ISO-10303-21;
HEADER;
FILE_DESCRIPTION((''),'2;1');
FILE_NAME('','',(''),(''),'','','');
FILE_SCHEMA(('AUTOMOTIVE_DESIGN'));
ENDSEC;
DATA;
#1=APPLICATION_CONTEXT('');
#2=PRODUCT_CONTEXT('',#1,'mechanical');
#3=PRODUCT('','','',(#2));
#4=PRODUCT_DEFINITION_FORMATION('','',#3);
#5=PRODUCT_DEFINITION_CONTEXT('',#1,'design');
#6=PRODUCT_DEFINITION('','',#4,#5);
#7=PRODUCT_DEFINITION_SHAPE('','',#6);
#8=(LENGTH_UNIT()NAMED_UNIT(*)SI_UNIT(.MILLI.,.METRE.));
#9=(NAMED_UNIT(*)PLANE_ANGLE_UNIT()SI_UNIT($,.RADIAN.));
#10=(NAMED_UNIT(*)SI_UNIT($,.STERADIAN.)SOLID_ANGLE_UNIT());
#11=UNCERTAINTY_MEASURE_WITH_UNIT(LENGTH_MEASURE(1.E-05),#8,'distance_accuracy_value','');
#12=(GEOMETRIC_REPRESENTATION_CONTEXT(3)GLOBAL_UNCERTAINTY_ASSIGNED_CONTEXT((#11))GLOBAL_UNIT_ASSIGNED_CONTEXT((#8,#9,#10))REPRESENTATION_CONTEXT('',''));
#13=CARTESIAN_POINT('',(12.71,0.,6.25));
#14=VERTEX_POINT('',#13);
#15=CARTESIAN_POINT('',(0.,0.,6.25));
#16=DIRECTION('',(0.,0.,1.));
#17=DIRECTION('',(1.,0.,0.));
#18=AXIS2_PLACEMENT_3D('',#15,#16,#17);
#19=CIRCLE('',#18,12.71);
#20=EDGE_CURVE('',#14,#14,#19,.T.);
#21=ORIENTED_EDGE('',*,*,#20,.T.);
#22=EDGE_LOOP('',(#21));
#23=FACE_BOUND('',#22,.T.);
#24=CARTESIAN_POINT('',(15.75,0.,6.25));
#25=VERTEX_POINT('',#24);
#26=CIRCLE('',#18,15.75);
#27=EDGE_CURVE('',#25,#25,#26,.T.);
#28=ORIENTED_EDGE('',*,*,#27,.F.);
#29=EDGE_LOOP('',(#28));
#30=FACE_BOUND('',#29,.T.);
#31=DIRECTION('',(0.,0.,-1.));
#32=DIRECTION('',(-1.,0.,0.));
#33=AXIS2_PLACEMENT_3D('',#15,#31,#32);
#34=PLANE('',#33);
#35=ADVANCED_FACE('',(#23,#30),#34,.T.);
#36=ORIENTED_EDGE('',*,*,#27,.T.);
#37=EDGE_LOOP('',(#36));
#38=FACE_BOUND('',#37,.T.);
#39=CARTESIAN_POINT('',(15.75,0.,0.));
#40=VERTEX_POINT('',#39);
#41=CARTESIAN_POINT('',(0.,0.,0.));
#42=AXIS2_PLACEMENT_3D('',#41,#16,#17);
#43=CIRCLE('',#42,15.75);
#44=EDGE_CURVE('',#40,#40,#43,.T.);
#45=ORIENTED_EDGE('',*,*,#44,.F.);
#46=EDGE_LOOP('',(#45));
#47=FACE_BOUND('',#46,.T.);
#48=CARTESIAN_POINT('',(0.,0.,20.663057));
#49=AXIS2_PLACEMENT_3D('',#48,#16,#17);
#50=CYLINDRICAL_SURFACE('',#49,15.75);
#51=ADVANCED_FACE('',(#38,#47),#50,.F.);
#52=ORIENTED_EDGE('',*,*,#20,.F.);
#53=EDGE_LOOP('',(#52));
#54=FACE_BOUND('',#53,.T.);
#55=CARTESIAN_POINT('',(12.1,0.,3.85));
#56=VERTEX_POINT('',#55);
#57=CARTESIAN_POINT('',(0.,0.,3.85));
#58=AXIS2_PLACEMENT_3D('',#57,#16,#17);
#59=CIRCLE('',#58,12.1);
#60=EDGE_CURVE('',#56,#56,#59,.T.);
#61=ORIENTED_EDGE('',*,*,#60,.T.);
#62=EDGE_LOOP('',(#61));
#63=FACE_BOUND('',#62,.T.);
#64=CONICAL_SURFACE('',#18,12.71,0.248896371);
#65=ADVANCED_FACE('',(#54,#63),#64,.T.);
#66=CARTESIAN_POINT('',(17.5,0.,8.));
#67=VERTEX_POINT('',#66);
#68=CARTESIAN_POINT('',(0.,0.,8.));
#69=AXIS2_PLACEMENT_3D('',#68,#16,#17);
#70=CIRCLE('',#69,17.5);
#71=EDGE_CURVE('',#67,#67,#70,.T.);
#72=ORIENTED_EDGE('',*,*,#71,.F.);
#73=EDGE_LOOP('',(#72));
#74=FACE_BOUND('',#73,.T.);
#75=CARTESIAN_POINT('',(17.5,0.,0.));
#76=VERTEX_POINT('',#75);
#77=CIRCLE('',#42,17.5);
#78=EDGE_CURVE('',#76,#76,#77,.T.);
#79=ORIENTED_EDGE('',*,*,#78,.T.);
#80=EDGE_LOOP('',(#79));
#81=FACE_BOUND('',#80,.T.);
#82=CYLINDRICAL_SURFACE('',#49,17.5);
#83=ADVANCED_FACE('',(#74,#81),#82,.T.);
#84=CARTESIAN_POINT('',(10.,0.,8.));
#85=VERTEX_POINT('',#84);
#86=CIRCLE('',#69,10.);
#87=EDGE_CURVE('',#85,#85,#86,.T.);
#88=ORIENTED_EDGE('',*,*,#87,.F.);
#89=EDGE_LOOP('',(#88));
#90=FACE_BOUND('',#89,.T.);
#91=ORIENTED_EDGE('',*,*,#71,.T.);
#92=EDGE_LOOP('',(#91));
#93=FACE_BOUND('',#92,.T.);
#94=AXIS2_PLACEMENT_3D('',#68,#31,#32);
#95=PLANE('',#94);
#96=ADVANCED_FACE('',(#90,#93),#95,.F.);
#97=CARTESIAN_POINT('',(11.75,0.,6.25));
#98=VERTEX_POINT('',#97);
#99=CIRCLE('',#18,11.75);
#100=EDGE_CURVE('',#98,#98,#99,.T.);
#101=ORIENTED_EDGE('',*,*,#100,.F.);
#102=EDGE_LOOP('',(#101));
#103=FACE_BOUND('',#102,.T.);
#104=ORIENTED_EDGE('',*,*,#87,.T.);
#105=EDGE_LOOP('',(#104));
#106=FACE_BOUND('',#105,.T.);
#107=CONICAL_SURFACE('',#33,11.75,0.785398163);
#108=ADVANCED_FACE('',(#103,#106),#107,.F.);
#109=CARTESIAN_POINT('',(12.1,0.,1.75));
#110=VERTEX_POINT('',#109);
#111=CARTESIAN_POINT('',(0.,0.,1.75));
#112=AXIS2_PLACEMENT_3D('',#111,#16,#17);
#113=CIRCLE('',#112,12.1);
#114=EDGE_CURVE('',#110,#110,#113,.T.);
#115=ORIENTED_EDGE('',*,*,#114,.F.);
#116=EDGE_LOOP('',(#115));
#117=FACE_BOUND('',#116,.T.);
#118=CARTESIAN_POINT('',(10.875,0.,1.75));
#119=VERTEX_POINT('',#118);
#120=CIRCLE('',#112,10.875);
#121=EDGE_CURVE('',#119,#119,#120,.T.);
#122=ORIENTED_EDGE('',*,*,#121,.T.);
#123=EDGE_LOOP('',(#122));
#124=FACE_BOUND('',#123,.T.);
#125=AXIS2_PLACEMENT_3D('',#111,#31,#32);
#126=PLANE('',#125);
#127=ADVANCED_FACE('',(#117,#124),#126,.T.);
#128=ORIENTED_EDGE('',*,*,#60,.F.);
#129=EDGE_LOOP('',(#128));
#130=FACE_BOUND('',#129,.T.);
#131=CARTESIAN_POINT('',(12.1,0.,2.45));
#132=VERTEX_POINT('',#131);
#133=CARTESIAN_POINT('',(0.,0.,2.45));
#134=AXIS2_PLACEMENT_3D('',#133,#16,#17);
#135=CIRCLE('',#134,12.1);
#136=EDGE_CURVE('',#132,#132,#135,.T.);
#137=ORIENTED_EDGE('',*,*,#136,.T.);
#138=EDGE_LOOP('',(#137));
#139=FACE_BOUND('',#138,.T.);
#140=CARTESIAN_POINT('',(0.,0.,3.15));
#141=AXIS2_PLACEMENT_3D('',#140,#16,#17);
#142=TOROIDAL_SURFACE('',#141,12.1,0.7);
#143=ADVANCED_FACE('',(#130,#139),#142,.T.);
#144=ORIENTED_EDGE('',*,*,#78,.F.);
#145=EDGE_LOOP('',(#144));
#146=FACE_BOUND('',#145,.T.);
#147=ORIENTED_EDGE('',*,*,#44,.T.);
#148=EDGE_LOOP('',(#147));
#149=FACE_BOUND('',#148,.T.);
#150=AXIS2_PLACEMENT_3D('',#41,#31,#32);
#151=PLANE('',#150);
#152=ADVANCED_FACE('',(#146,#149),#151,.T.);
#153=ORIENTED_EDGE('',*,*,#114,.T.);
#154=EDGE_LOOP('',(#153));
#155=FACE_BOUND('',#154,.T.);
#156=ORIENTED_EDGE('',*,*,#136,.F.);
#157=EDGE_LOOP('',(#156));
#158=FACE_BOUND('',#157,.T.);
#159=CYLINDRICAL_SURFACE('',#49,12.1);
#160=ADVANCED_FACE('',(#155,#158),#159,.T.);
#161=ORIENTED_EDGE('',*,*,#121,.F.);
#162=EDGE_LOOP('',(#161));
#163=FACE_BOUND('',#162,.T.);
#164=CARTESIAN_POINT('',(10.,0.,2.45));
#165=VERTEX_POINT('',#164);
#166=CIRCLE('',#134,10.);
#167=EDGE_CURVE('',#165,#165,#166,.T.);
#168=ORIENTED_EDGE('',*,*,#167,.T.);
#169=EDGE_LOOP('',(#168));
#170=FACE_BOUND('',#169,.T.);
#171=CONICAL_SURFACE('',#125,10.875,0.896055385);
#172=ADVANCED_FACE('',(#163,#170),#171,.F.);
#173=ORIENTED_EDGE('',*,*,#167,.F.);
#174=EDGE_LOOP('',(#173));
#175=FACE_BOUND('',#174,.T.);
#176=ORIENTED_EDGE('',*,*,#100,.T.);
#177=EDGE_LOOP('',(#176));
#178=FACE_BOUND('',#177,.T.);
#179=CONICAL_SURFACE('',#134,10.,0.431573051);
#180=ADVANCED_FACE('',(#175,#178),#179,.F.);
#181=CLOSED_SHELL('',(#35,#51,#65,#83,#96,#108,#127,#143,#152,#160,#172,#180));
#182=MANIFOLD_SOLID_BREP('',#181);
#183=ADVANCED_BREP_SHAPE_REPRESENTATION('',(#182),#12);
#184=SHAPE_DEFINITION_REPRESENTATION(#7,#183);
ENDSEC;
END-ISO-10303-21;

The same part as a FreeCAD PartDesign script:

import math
import FreeCAD as App
import Part
import Sketcher

V = App.Vector
Q = App.Units.Quantity

doc = App.newDocument("Part")
body = doc.addObject("PartDesign::Body", "Body")

# Sketch on YZ plane
sketch1 = doc.addObject("Sketcher::SketchObject", "Sketch")
body.addObject(sketch1)
sketch1.AttachmentSupport = (doc.YZ_Plane, [""])
sketch1.MapMode = "FlatFace"
sketch1.addGeometry(Part.LineSegment(V(15.8, 0, 0), V(17.5, 0, 0)), False)
sketch1.addGeometry(Part.LineSegment(V(17.5, 0, 0), V(17.5, 8, 0)), False)
sketch1.addGeometry(Part.LineSegment(V(17.5, 8, 0), V(10, 8, 0)), False)
sketch1.addGeometry(Part.LineSegment(V(10, 8, 0), V(11.8, 6.2, 0)), False)
sketch1.addGeometry(Part.LineSegment(V(11.8, 6.2, 0), V(10, 2.5, 0)), False)
sketch1.addGeometry(Part.LineSegment(V(10, 2.5, 0), V(10.9, 1.8, 0)), False)
sketch1.addGeometry(Part.LineSegment(V(10.9, 1.8, 0), V(12.1, 1.8, 0)), False)
sketch1.addGeometry(Part.LineSegment(V(12.1, 1.8, 0), V(12.1, 2.5, 0)), False)
sketch1.addGeometry(Part.ArcOfCircle(Part.Circle(V(12.1, 3.1, 0), V(0, 0, 1), 0.7), math.radians(-90), math.radians(90)), False)
sketch1.addGeometry(Part.LineSegment(V(12.1, 3.9, 0), V(12.7, 6.2, 0)), False)
sketch1.addGeometry(Part.LineSegment(V(12.7, 6.2, 0), V(15.8, 6.2, 0)), False)
sketch1.addGeometry(Part.LineSegment(V(15.8, 6.2, 0), V(15.8, 0, 0)), False)
sketch1.addConstraint(Sketcher.Constraint("Coincident", 0, 2, 1, 1))
sketch1.addConstraint(Sketcher.Constraint("Coincident", 1, 2, 2, 1))
sketch1.addConstraint(Sketcher.Constraint("Coincident", 2, 2, 3, 1))
sketch1.addConstraint(Sketcher.Constraint("Coincident", 3, 2, 4, 1))
sketch1.addConstraint(Sketcher.Constraint("Coincident", 4, 2, 5, 1))
sketch1.addConstraint(Sketcher.Constraint("Coincident", 5, 2, 6, 1))
sketch1.addConstraint(Sketcher.Constraint("Coincident", 6, 2, 7, 1))
sketch1.addConstraint(Sketcher.Constraint("Coincident", 7, 2, 8, 1))
sketch1.addConstraint(Sketcher.Constraint("Coincident", 8, 2, 9, 1))
sketch1.addConstraint(Sketcher.Constraint("Coincident", 9, 2, 10, 1))
sketch1.addConstraint(Sketcher.Constraint("Coincident", 10, 2, 11, 1))
sketch1.addConstraint(Sketcher.Constraint("Coincident", 11, 2, 0, 1))
sketch1.addConstraint(Sketcher.Constraint("Horizontal", 0))
sketch1.addConstraint(Sketcher.Constraint("Vertical", 1))
sketch1.addConstraint(Sketcher.Constraint("Horizontal", 2))
sketch1.addConstraint(Sketcher.Constraint("Horizontal", 6))
sketch1.addConstraint(Sketcher.Constraint("Vertical", 7))
sketch1.addConstraint(Sketcher.Constraint("Horizontal", 10))
sketch1.addConstraint(Sketcher.Constraint("Vertical", 11))
sketch1.addConstraint(Sketcher.Constraint("PointOnObject", 0, 2, -1))
sketch1.addConstraint(Sketcher.Constraint("Horizontal", 4, 2, 7, 2))
sketch1.addConstraint(Sketcher.Constraint("Horizontal", 3, 2, 9, 2))
sketch1.addConstraint(Sketcher.Constraint("Vertical", 2, 2, 4, 2))
sketch1.addConstraint(Sketcher.Constraint("Vertical", 8, 3, 6, 2))
sketch1.addConstraint(Sketcher.Constraint("Vertical", 7, 2, 8, 2))
sketch1.addConstraint(Sketcher.Constraint("Radius", 8, Q("0.7 mm")))
sketch1.addConstraint(Sketcher.Constraint("DistanceY", 1, 1, 1, 2, Q("8 mm")))
sketch1.addConstraint(Sketcher.Constraint("Angle", 3, Q("-45 deg")))
sketch1.addConstraint(Sketcher.Constraint("DistanceX", 2, 2, 2, 1, Q("7.5 mm")))
sketch1.addConstraint(Sketcher.Constraint("DistanceY", 7, 1, 7, 2, Q("0.7 mm")))
sketch1.addConstraint(Sketcher.Constraint("DistanceX", -1, 1, 2, 2, Q("10 mm")))
sketch1.addConstraint(Sketcher.Constraint("DistanceX", 3, 2, 10, 2, Q("4 mm")))
sketch1.addConstraint(Sketcher.Constraint("DistanceX", 0, 1, 0, 2, Q("1.75 mm")))
sketch1.addConstraint(Sketcher.Constraint("DistanceX", 10, 1, 10, 2, Q("3.04 mm")))
sketch1.addConstraint(Sketcher.Constraint("DistanceX", -1, 1, 8, 3, Q("12.1 mm")))
sketch1.addConstraint(Sketcher.Constraint("DistanceY", 8, 3, 3, 2, Q("3.1 mm")))
sketch1.addConstraint(Sketcher.Constraint("DistanceX", 6, 1, 6, 2, Q("1.225 mm")))
revolution = doc.addObject("PartDesign::Revolution", "Revolution")
body.addObject(revolution)
revolution.Profile = sketch1
revolution.ReferenceAxis = (sketch1, ["V_Axis"])
revolution.Angle = 360

doc.recompute()
